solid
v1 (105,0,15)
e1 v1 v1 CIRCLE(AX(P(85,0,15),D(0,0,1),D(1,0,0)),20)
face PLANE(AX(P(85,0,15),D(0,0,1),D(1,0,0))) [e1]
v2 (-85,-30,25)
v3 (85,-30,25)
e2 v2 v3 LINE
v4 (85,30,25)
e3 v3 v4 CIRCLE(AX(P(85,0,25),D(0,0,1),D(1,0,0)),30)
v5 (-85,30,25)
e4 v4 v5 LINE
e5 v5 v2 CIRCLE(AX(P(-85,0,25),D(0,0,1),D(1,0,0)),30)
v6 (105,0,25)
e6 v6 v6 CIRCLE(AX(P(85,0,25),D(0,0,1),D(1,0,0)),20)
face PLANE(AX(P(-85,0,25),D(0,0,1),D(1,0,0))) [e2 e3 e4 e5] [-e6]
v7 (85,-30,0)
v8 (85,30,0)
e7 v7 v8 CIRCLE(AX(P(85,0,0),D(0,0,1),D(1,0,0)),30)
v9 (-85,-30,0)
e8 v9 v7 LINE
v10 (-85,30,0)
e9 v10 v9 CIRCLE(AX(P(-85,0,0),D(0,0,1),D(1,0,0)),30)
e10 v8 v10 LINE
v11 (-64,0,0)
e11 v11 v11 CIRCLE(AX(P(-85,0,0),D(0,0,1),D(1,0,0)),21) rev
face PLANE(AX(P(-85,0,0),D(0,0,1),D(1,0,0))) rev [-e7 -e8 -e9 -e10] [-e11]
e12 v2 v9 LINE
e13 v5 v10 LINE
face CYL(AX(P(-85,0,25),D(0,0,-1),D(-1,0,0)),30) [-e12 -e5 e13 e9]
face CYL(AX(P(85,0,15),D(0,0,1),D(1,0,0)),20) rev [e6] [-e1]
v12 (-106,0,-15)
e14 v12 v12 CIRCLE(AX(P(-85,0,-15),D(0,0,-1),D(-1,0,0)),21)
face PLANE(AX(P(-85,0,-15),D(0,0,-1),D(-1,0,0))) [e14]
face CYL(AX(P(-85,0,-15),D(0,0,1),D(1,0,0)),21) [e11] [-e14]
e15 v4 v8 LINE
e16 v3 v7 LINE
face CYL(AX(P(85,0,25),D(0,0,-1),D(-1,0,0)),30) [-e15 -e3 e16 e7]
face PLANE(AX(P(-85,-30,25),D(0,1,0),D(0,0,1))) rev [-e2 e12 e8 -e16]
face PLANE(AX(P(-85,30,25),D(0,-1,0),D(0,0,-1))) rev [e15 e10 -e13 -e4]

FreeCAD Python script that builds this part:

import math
import FreeCAD as App
import Part
import Sketcher

V = App.Vector

doc = App.newDocument("Part")
body = doc.addObject("PartDesign::Body", "Body")

sketch1 = doc.addObject("Sketcher::SketchObject", "Sketch")
body.addObject(sketch1)
sketch1.AttachmentSupport = (doc.XY_Plane, [""])
sketch1.MapMode = "FlatFace"
sketch1.addGeometry(Part.LineSegment(V(85, 30, 0), V(-85, 30, 0)), False)
sketch1.addGeometry(Part.ArcOfCircle(Part.Circle(V(-85, 0, 0), V(0, 0, 1), 30), math.radians(90), math.radians(270)), False)
sketch1.addGeometry(Part.LineSegment(V(-85, -30, 0), V(85, -30, 0)), False)
sketch1.addGeometry(Part.ArcOfCircle(Part.Circle(V(85, 0, 0), V(0, 0, 1), 30), math.radians(-90), math.radians(90)), False)
sketch1.addConstraint(Sketcher.Constraint("Tangent", 0, 2, 1, 1))
sketch1.addConstraint(Sketcher.Constraint("Tangent", 1, 2, 2, 1))
sketch1.addConstraint(Sketcher.Constraint("Tangent", 2, 2, 3, 1))
sketch1.addConstraint(Sketcher.Constraint("Tangent", 3, 2, 0, 1))
sketch1.addConstraint(Sketcher.Constraint("Horizontal", 0))
sketch1.addConstraint(Sketcher.Constraint("Horizontal", 2))
sketch1.addConstraint(Sketcher.Constraint("Symmetric", 1, 3, 3, 3, -1, 1))
sketch1.addConstraint(Sketcher.Constraint("Radius", 1, 30.0))
sketch1.addConstraint(Sketcher.Constraint("DistanceX", 0, 2, 0, 1, 170.0))
pad1 = doc.addObject("PartDesign::Pad", "Pad")
body.addObject(pad1)
pad1.Profile = sketch1
pad1.Length = 25

sketch2 = doc.addObject("Sketcher::SketchObject", "Sketch001")
body.addObject(sketch2)
sketch2.AttachmentSupport = (doc.XY_Plane, [""])
sketch2.MapMode = "FlatFace"
sketch2.addGeometry(Part.Circle(V(-85, 0, 0), V(0, 0, 1), 21), False)
sketch2.addConstraint(Sketcher.Constraint("PointOnObject", 0, 3, -1))
sketch2.addConstraint(Sketcher.Constraint("Diameter", 0, 42.0))
sketch2.addConstraint(Sketcher.Constraint("DistanceX", 0, 3, -1, 1, 85.0))
pad2 = doc.addObject("PartDesign::Pad", "Pad001")
body.addObject(pad2)
pad2.Profile = sketch2
pad2.Length = 15
pad2.Reversed = True

sketch3 = doc.addObject("Sketcher::SketchObject", "Sketch002")
body.addObject(sketch3)
sketch3.AttachmentSupport = (doc.XY_Plane, [""])
sketch3.MapMode = "FlatFace"
sketch3.AttachmentOffset = App.Placement(V(0, 0, 25), App.Rotation())
sketch3.addGeometry(Part.Circle(V(85, 0, 0), V(0, 0, 1), 20), False)
sketch3.addConstraint(Sketcher.Constraint("PointOnObject", 0, 3, -1))
sketch3.addConstraint(Sketcher.Constraint("Diameter", 0, 40.0))
sketch3.addConstraint(Sketcher.Constraint("DistanceX", -1, 1, 0, 3, 85.0))
pocket1 = doc.addObject("PartDesign::Pocket", "Pocket")
body.addObject(pocket1)
pocket1.Profile = sketch3
pocket1.Length = 10

doc.recompute()
